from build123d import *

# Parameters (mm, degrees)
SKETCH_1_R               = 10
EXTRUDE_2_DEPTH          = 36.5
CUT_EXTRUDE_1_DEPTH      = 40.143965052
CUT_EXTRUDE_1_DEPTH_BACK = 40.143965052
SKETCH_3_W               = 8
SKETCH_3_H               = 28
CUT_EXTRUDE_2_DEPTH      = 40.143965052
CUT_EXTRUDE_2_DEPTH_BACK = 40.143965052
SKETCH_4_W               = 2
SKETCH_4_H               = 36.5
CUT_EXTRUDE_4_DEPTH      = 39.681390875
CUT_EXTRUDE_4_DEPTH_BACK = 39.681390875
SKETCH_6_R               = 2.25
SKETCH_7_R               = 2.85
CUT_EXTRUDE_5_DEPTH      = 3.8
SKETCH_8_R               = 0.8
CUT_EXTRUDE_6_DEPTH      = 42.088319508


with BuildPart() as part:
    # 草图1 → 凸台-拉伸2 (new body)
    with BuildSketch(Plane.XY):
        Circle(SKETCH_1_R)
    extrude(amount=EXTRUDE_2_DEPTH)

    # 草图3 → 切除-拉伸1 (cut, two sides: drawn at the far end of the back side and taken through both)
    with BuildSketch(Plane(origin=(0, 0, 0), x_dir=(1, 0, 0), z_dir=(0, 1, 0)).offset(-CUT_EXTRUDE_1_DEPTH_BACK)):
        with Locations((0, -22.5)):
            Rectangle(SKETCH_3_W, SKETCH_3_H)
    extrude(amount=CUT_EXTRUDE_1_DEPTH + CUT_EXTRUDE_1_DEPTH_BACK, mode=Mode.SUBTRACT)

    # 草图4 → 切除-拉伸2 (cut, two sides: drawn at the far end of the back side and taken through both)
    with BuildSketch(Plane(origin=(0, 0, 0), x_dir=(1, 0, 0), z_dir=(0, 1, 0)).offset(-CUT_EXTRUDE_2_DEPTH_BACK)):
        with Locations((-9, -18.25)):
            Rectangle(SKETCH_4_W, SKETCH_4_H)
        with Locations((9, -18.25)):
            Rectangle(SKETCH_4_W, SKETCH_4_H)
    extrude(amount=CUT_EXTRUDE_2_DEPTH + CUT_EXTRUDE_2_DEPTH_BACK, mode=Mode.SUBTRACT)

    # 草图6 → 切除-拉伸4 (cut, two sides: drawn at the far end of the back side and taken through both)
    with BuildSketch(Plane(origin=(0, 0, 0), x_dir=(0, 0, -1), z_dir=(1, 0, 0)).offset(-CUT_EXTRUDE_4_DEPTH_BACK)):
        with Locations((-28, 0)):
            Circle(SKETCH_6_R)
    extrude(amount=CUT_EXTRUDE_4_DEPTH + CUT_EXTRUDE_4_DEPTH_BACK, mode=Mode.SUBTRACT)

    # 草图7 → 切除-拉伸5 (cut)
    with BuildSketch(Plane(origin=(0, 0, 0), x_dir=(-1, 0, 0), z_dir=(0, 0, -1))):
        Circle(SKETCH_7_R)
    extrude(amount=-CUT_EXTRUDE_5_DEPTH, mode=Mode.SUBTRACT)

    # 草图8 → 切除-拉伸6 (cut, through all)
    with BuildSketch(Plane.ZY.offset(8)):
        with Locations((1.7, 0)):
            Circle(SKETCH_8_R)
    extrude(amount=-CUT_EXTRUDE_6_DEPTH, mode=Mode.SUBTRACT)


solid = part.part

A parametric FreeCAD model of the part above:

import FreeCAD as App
import Part
import Sketcher

V = App.Vector
Q = App.Units.Quantity


def add_polygon(sketch, points):
    """Adds a closed chain of lines whose ends are joined by coincident constraints."""
    first, n = sketch.GeometryCount, len(points)
    for a, b in zip(points, points[1:] + points[:1]):
        sketch.addGeometry(Part.LineSegment(App.Vector(*a, 0), App.Vector(*b, 0)), False)
    for i in range(n):
        sketch.addConstraint(Sketcher.Constraint("Coincident", first + i, 2, first + (i + 1) % n, 1))

doc = App.newDocument("Part")
body = doc.addObject("PartDesign::Body", "Body")

# Sketch on XY plane
sketch1 = body.newObject("Sketcher::SketchObject", "Sketch")
sketch1.AttachmentSupport = (doc.getObject("XY_Plane"), [""])
sketch1.MapMode = "FlatFace"
sketch1.addGeometry(Part.Circle(V(0, 0, 0), V(0, 0, 1), 10), False)
sketch1.addConstraint([
    Sketcher.Constraint("Coincident", 0, 3, -1, 1),
    Sketcher.Constraint("Diameter", 0, Q("20 mm")),
])
pad1 = body.newObject("PartDesign::Pad", "Pad")
pad1.Profile = sketch1
pad1.Length = 36.5

# Sketch on XZ plane
sketch2 = body.newObject("Sketcher::SketchObject", "Sketch001")
sketch2.AttachmentSupport = (doc.getObject("XZ_Plane"), [""])
sketch2.MapMode = "FlatFace"
add_polygon(sketch2, [(-4, 8), (-4, 36), (4, 36), (4, 8)])  # lines 0-3
sketch2.addConstraint([
    Sketcher.Constraint("Vertical", 0),
    Sketcher.Constraint("Horizontal", 1),
    Sketcher.Constraint("Vertical", 2),
    Sketcher.Constraint("Horizontal", 3),
    Sketcher.Constraint("DistanceX", 1, 1, 1, 2, Q("8 mm")),
    Sketcher.Constraint("DistanceY", 0, 1, 0, 2, Q("28 mm")),
    Sketcher.Constraint("DistanceX", 0, 2, -1, 1, Q("4 mm")),
    Sketcher.Constraint("DistanceY", -1, 1, 0, 2, Q("36.5 mm")),
])
pocket1 = body.newObject("PartDesign::Pocket", "Pocket")
pocket1.Profile = sketch2
pocket1.Type = "ThroughAll"
pocket1.Midplane = True

# Sketch on XZ plane
sketch3 = body.newObject("Sketcher::SketchObject", "Sketch002")
sketch3.AttachmentSupport = (doc.getObject("XZ_Plane"), [""])
sketch3.MapMode = "FlatFace"
add_polygon(sketch3, [(-10, 0), (-10, 36.5), (-8, 36.5), (-8, 0)])  # lines 0-3
add_polygon(sketch3, [(8, 0), (8, 36.5), (10, 36.5), (10, 0)])  # lines 4-7
sketch3.addConstraint([
    Sketcher.Constraint("Vertical", 0),
    Sketcher.Constraint("Horizontal", 1),
    Sketcher.Constraint("Vertical", 2),
    Sketcher.Constraint("Horizontal", 3),
    Sketcher.Constraint("Vertical", 4),
    Sketcher.Constraint("Horizontal", 5),
    Sketcher.Constraint("Vertical", 6),
    Sketcher.Constraint("Horizontal", 7),
    Sketcher.Constraint("Symmetric", 3, 2, 6, 2, -1, 1),
    Sketcher.Constraint("Symmetric", 1, 2, 4, 2, -2),
    Sketcher.Constraint("PointOnObject", 2, 2, -1),
    Sketcher.Constraint("DistanceX", 1, 1, 1, 2, Q("2 mm")),
    Sketcher.Constraint("DistanceY", 0, 1, 0, 2, Q("36.5 mm")),
    Sketcher.Constraint("DistanceX", 0, 2, -1, 1, Q("10 mm")),
])
pocket2 = body.newObject("PartDesign::Pocket", "Pocket001")
pocket2.Profile = sketch3
pocket2.Type = "ThroughAll"
pocket2.Midplane = True

# Sketch on YZ plane
sketch4 = body.newObject("Sketcher::SketchObject", "Sketch003")
sketch4.AttachmentSupport = (doc.getObject("YZ_Plane"), [""])
sketch4.MapMode = "FlatFace"
sketch4.addGeometry(Part.Circle(V(0, 28, 0), V(0, 0, 1), 2.2), False)
sketch4.addConstraint([
    Sketcher.Constraint("PointOnObject", 0, 3, -2),
    Sketcher.Constraint("Diameter", 0, Q("4.5 mm")),
    Sketcher.Constraint("DistanceY", -1, 1, 0, 3, Q("28 mm")),
])
pocket3 = body.newObject("PartDesign::Pocket", "Pocket002")
pocket3.Profile = sketch4
pocket3.Type = "ThroughAll"
pocket3.Midplane = True

# Sketch on XY plane
sketch5 = body.newObject("Sketcher::SketchObject", "Sketch004")
sketch5.AttachmentSupport = (doc.getObject("XY_Plane"), [""])
sketch5.MapMode = "FlatFace"
sketch5.addGeometry(Part.Circle(V(0, 0, 0), V(0, 0, 1), 2.9), False)
sketch5.addConstraint([
    Sketcher.Constraint("Coincident", 0, 3, -1, 1),
    Sketcher.Constraint("Diameter", 0, Q("5.7 mm")),
])
pocket4 = body.newObject("PartDesign::Pocket", "Pocket003")
pocket4.Profile = sketch5
pocket4.Length = 3.8
pocket4.Reversed = True

# Sketch on YZ plane
sketch6 = body.newObject("Sketcher::SketchObject", "Sketch005")
sketch6.AttachmentSupport = (doc.getObject("YZ_Plane"), [""])
sketch6.MapMode = "FlatFace"
sketch6.AttachmentOffset = App.Placement(V(0, 0, -8), App.Rotation())
sketch6.addGeometry(Part.Circle(V(0, 1.7, 0), V(0, 0, 1), 0.8), False)
sketch6.addConstraint([
    Sketcher.Constraint("PointOnObject", 0, 3, -2),
    Sketcher.Constraint("Diameter", 0, Q("1.6 mm")),
    Sketcher.Constraint("DistanceY", -1, 1, 0, 3, Q("1.7 mm")),
])
pocket5 = body.newObject("PartDesign::Pocket", "Pocket004")
pocket5.Profile = sketch6
pocket5.Type = "ThroughAll"
pocket5.Reversed = True

doc.recompute()
